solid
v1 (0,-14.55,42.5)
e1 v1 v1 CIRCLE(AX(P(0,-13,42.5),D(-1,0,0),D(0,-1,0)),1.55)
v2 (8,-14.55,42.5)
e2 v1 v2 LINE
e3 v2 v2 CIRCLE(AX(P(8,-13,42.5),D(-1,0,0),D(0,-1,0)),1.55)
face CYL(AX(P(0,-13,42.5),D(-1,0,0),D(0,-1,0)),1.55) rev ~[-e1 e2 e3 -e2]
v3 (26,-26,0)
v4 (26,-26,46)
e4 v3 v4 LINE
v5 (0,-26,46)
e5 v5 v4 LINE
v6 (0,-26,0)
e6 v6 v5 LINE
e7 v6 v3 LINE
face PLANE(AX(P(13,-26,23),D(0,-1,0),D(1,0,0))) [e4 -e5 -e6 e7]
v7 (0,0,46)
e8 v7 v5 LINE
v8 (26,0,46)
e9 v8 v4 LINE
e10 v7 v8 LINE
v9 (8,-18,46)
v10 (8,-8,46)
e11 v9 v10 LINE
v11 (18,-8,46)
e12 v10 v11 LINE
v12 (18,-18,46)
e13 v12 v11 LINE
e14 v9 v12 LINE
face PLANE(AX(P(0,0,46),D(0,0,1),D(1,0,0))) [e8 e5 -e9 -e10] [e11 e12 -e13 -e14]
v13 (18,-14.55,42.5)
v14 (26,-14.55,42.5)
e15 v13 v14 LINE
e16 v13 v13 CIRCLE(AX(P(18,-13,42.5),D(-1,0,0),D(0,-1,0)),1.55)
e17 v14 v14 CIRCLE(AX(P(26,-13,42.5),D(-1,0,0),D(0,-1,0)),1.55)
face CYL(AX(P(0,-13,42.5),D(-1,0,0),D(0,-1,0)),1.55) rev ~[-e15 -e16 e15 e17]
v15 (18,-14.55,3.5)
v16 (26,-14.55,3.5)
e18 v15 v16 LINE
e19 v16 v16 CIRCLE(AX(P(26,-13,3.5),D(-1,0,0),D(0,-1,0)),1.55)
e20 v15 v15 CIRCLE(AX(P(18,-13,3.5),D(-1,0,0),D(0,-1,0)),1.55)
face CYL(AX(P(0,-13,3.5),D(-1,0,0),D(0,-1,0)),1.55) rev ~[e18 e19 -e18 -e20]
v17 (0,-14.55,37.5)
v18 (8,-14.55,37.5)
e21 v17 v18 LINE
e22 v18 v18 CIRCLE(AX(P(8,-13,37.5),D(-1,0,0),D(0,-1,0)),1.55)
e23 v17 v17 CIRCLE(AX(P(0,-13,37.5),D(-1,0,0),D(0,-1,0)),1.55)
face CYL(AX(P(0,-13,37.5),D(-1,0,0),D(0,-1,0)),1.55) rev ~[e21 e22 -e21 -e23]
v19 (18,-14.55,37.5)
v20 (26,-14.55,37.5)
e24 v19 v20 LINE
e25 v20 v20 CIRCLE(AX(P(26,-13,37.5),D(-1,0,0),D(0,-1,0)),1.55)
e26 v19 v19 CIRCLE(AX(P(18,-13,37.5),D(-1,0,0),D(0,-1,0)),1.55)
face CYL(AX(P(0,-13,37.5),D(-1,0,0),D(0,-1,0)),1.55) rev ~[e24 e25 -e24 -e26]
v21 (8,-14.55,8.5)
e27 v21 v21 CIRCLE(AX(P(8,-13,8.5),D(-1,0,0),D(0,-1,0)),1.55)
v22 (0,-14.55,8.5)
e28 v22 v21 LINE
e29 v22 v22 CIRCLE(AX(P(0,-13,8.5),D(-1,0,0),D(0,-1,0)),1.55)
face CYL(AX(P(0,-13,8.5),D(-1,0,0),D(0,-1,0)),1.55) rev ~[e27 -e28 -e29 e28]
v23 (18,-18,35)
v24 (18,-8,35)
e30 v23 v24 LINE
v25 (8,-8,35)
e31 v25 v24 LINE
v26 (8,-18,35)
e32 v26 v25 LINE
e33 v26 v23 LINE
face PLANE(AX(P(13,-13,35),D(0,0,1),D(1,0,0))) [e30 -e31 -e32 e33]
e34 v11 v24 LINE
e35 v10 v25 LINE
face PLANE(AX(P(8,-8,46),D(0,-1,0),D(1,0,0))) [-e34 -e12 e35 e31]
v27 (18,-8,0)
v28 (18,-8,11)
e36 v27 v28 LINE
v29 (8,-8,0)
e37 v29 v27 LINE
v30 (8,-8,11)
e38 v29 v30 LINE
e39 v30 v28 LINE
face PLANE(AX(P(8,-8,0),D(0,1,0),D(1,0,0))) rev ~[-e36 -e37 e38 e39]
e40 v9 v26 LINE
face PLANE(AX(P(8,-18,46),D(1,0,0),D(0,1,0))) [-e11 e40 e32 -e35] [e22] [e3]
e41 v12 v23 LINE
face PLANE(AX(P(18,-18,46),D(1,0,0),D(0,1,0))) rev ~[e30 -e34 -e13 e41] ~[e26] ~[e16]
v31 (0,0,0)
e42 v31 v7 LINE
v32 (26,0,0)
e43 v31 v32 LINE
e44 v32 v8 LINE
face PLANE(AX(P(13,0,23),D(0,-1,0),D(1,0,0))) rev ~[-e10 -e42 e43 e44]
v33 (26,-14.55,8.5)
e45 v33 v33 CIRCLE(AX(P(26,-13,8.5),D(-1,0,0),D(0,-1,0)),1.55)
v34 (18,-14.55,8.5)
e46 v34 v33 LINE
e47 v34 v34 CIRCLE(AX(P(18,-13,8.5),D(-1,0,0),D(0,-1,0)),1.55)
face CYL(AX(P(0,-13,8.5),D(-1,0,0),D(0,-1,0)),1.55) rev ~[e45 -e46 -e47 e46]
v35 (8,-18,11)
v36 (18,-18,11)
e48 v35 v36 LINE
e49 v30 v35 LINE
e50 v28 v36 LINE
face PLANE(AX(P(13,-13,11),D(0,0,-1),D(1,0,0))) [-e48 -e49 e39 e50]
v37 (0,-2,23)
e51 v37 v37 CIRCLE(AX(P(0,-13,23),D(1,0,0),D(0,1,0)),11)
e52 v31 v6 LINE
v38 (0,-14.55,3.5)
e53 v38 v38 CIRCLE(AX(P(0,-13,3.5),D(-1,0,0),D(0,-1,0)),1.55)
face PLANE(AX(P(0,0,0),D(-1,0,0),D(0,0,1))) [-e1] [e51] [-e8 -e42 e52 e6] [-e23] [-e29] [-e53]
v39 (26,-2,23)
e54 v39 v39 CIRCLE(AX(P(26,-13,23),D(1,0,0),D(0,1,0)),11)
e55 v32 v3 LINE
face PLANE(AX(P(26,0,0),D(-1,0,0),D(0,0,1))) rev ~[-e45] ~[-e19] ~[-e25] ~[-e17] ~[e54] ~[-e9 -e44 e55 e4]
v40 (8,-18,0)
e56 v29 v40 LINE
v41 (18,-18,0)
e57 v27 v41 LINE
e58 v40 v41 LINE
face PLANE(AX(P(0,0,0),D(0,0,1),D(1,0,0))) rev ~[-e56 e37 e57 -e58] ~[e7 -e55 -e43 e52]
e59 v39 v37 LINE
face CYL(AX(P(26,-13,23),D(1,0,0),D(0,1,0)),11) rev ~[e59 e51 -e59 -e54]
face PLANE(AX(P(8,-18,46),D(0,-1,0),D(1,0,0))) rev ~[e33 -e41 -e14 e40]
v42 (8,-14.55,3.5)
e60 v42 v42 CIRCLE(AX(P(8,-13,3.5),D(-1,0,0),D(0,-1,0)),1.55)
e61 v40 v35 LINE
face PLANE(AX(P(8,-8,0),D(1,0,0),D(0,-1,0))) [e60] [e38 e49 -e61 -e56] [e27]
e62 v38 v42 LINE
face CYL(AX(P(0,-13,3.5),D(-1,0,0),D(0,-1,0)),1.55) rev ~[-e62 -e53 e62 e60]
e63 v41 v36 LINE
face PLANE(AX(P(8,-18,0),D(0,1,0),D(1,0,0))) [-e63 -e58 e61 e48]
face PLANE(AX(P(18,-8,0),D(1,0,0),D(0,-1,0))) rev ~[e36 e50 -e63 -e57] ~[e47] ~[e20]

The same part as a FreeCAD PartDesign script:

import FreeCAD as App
import Part
import Sketcher

doc = App.newDocument("Part")
body = doc.addObject("PartDesign::Body", "Body")

# Sketch on XZ plane
sketch1 = body.newObject("Sketcher::SketchObject", "Sketch")
sketch1.AttachmentSupport = (doc.getObject("XZ_Plane"), [""])
sketch1.MapMode = "FlatFace"
sketch1.addGeometry(Part.LineSegment(App.Vector(0, 46, 0), App.Vector(0, 0, 0)), False)
sketch1.addGeometry(Part.LineSegment(App.Vector(0, 0, 0), App.Vector(26, 0, 0)), False)
sketch1.addGeometry(Part.LineSegment(App.Vector(26, 0, 0), App.Vector(26, 46, 0)), False)
sketch1.addGeometry(Part.LineSegment(App.Vector(26, 46, 0), App.Vector(0, 46, 0)), False)
sketch1.addConstraint(Sketcher.Constraint("Coincident", 0, 2, 1, 1))
sketch1.addConstraint(Sketcher.Constraint("Coincident", 1, 2, 2, 1))
sketch1.addConstraint(Sketcher.Constraint("Coincident", 2, 2, 3, 1))
sketch1.addConstraint(Sketcher.Constraint("Coincident", 3, 2, 0, 1))
sketch1.addConstraint(Sketcher.Constraint("Vertical", 0))
sketch1.addConstraint(Sketcher.Constraint("Horizontal", 1))
sketch1.addConstraint(Sketcher.Constraint("Vertical", 2))
sketch1.addConstraint(Sketcher.Constraint("Horizontal", 3))
sketch1.addConstraint(Sketcher.Constraint("Coincident", 0, 2, -1, 1))
sketch1.addConstraint(Sketcher.Constraint("DistanceX", 1, 1, 1, 2, 26.0))
sketch1.addConstraint(Sketcher.Constraint("DistanceY", 0, 2, 0, 1, 46.0))
pad1 = body.newObject("PartDesign::Pad", "Pad")
pad1.Profile = sketch1
pad1.Length = 26

# Sketch on XY plane
sketch2 = body.newObject("Sketcher::SketchObject", "Sketch001")
sketch2.AttachmentSupport = (doc.getObject("XY_Plane"), [""])
sketch2.MapMode = "FlatFace"
sketch2.AttachmentOffset = App.Placement(App.Vector(0, 0, 46), App.Rotation())
sketch2.addGeometry(Part.LineSegment(App.Vector(8, -8, 0), App.Vector(8, -18, 0)), False)
sketch2.addGeometry(Part.LineSegment(App.Vector(8, -18, 0), App.Vector(18, -18, 0)), False)
sketch2.addGeometry(Part.LineSegment(App.Vector(18, -18, 0), App.Vector(18, -8, 0)), False)
sketch2.addGeometry(Part.LineSegment(App.Vector(18, -8, 0), App.Vector(8, -8, 0)), False)
sketch2.addConstraint(Sketcher.Constraint("Coincident", 0, 2, 1, 1))
sketch2.addConstraint(Sketcher.Constraint("Coincident", 1, 2, 2, 1))
sketch2.addConstraint(Sketcher.Constraint("Coincident", 2, 2, 3, 1))
sketch2.addConstraint(Sketcher.Constraint("Coincident", 3, 2, 0, 1))
sketch2.addConstraint(Sketcher.Constraint("Vertical", 0))
sketch2.addConstraint(Sketcher.Constraint("Horizontal", 1))
sketch2.addConstraint(Sketcher.Constraint("Vertical", 2))
sketch2.addConstraint(Sketcher.Constraint("Horizontal", 3))
sketch2.addConstraint(Sketcher.Constraint("Equal", 3, 0))
sketch2.addConstraint(Sketcher.Constraint("DistanceX", 1, 1, 1, 2, 10.0))
sketch2.addConstraint(Sketcher.Constraint("DistanceX", -1, 1, 0, 2, 8.0))
sketch2.addConstraint(Sketcher.Constraint("DistanceY", 0, 2, -1, 1, 18.0))
pocket1 = body.newObject("PartDesign::Pocket", "Pocket")
pocket1.Profile = sketch2
pocket1.Length = 11

# Sketch on XY plane
sketch3 = body.newObject("Sketcher::SketchObject", "Sketch002")
sketch3.AttachmentSupport = (doc.getObject("XY_Plane"), [""])
sketch3.MapMode = "FlatFace"
sketch3.addGeometry(Part.LineSegment(App.Vector(8, -18, 0), App.Vector(8, -8, 0)), False)
sketch3.addGeometry(Part.LineSegment(App.Vector(8, -8, 0), App.Vector(18, -8, 0)), False)
sketch3.addGeometry(Part.LineSegment(App.Vector(18, -8, 0), App.Vector(18, -18, 0)), False)
sketch3.addGeometry(Part.LineSegment(App.Vector(18, -18, 0), App.Vector(8, -18, 0)), False)
sketch3.addConstraint(Sketcher.Constraint("Coincident", 0, 2, 1, 1))
sketch3.addConstraint(Sketcher.Constraint("Coincident", 1, 2, 2, 1))
sketch3.addConstraint(Sketcher.Constraint("Coincident", 2, 2, 3, 1))
sketch3.addConstraint(Sketcher.Constraint("Coincident", 3, 2, 0, 1))
sketch3.addConstraint(Sketcher.Constraint("Vertical", 0))
sketch3.addConstraint(Sketcher.Constraint("Horizontal", 1))
sketch3.addConstraint(Sketcher.Constraint("Vertical", 2))
sketch3.addConstraint(Sketcher.Constraint("Horizontal", 3))
sketch3.addConstraint(Sketcher.Constraint("Equal", 3, 0))
sketch3.addConstraint(Sketcher.Constraint("DistanceX", 1, 1, 1, 2, 10.0))
sketch3.addConstraint(Sketcher.Constraint("DistanceX", -1, 1, 0, 2, 8.0))
sketch3.addConstraint(Sketcher.Constraint("DistanceY", 0, 2, -1, 1, 8.0))
pocket2 = body.newObject("PartDesign::Pocket", "Pocket001")
pocket2.Profile = sketch3
pocket2.Length = 11
pocket2.Reversed = True

# Sketch on YZ plane
sketch4 = body.newObject("Sketcher::SketchObject", "Sketch003")
sketch4.AttachmentSupport = (doc.getObject("YZ_Plane"), [""])
sketch4.MapMode = "FlatFace"
sketch4.addGeometry(Part.Circle(App.Vector(-13, 8.5, 0), App.Vector(0, 0, 1), 1.55), False)
sketch4.addGeometry(Part.Circle(App.Vector(-13, 3.5, 0), App.Vector(0, 0, 1), 1.55), False)
sketch4.addGeometry(Part.Circle(App.Vector(-13, 42.5, 0), App.Vector(0, 0, 1), 1.55), False)
sketch4.addGeometry(Part.Circle(App.Vector(-13, 37.5, 0), App.Vector(0, 0, 1), 1.55), False)
sketch4.addConstraint(Sketcher.Constraint("Equal", 0, 1))
sketch4.addConstraint(Sketcher.Constraint("Equal", 1, 2))
sketch4.addConstraint(Sketcher.Constraint("Equal", 2, 3))
sketch4.addConstraint(Sketcher.Constraint("Vertical", 0, 3, 1, 3))
sketch4.addConstraint(Sketcher.Constraint("Vertical", 1, 3, 2, 3))
sketch4.addConstraint(Sketcher.Constraint("Vertical", 2, 3, 3, 3))
sketch4.addConstraint(Sketcher.Constraint("Diameter", 0, 3.1))
sketch4.addConstraint(Sketcher.Constraint("DistanceX", 0, 3, -1, 1, 13.0))
sketch4.addConstraint(Sketcher.Constraint("DistanceY", 1, 3, 0, 3, 5.0))
sketch4.addConstraint(Sketcher.Constraint("DistanceY", 0, 3, 2, 3, 34.0))
sketch4.addConstraint(Sketcher.Constraint("DistanceY", 3, 3, 2, 3, 5.0))
sketch4.addConstraint(Sketcher.Constraint("DistanceY", -1, 1, 0, 3, 8.5))
pocket3 = body.newObject("PartDesign::Pocket", "Pocket002")
pocket3.Profile = sketch4
pocket3.Length = 26
pocket3.Reversed = True

# Sketch on YZ plane
sketch5 = body.newObject("Sketcher::SketchObject", "Sketch004")
sketch5.AttachmentSupport = (doc.getObject("YZ_Plane"), [""])
sketch5.MapMode = "FlatFace"
sketch5.AttachmentOffset = App.Placement(App.Vector(0, 0, 26), App.Rotation())
sketch5.addGeometry(Part.Circle(App.Vector(-13, 23, 0), App.Vector(0, 0, 1), 11), False)
sketch5.addConstraint(Sketcher.Constraint("Diameter", 0, 22.0))
sketch5.addConstraint(Sketcher.Constraint("DistanceX", 0, 3, -1, 1, 13.0))
sketch5.addConstraint(Sketcher.Constraint("DistanceY", -1, 1, 0, 3, 23.0))
pocket4 = body.newObject("PartDesign::Pocket", "Pocket003")
pocket4.Profile = sketch5
pocket4.Length = 26

doc.recompute()
